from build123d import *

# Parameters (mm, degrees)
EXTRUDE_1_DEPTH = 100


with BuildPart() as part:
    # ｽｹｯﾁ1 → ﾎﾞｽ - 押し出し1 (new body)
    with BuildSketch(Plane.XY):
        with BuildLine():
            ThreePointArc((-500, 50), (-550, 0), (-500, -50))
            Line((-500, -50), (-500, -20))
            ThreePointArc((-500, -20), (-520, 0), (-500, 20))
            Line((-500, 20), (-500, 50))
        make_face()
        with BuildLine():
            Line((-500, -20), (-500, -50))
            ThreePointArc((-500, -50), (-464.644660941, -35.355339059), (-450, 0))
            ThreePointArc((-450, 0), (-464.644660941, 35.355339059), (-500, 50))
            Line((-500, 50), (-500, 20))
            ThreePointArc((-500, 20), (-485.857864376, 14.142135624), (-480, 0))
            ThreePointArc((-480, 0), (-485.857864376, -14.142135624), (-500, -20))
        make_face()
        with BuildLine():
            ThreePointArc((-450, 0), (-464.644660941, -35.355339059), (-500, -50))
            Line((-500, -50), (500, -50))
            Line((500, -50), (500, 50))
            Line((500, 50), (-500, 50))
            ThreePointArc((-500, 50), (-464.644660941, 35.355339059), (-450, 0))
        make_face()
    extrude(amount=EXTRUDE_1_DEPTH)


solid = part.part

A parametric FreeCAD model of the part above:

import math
import FreeCAD as App
import Part
import Sketcher

V = App.Vector

doc = App.newDocument("Part")
body = doc.addObject("PartDesign::Body", "Body")

# Sketch on XY plane
sketch1 = doc.addObject("Sketcher::SketchObject", "Sketch")
body.addObject(sketch1)
sketch1.AttachmentSupport = (doc.XY_Plane, [""])
sketch1.MapMode = "FlatFace"
sketch1.addGeometry([
    Part.ArcOfCircle(Part.Circle(V(-500, 0, 0), V(0, 0, 1), 50), math.radians(90), math.radians(270)),  # 0
    Part.LineSegment(V(-500, -50, 0), V(500, -50, 0)),  # 1
    Part.LineSegment(V(500, -50, 0), V(500, 50, 0)),  # 2
    Part.LineSegment(V(500, 50, 0), V(-500, 50, 0)),  # 3
    Part.ArcOfCircle(Part.Circle(V(-500, 0, 0), V(0, 0, 1), 20), math.radians(90), math.radians(270)),  # 4
    Part.ArcOfCircle(Part.Circle(V(-500, 0, 0), V(0, 0, 1), 20), math.radians(0), math.radians(90)),  # 5
    Part.ArcOfCircle(Part.Circle(V(-500, 0, 0), V(0, 0, 1), 20), math.radians(-90), math.radians(0)),  # 6
], False)
sketch1.addConstraint([
    Sketcher.Constraint("Tangent", 0, 2, 1, 1),
    Sketcher.Constraint("Coincident", 1, 2, 2, 1),
    Sketcher.Constraint("Coincident", 2, 2, 3, 1),
    Sketcher.Constraint("Tangent", 3, 2, 0, 1),
    Sketcher.Constraint("Tangent", 4, 1, 5, 2),
    Sketcher.Constraint("Tangent", 5, 1, 6, 2),
    Sketcher.Constraint("Tangent", 6, 1, 4, 2),
    Sketcher.Constraint("Horizontal", 1),
    Sketcher.Constraint("Vertical", 2),
    Sketcher.Constraint("Horizontal", 3),
    Sketcher.Constraint("Coincident", 4, 3, 0, 3),
    Sketcher.Constraint("Symmetric", 0, 2, 2, 2, -1, 1),
    Sketcher.Constraint("PointOnObject", 5, 1, -1),
    Sketcher.Constraint("Vertical", 3, 2, 4, 1),
    Sketcher.Constraint("Vertical", 4, 1, 6, 1),
    Sketcher.Constraint("Radius", 0, 50.0),
    Sketcher.Constraint("Radius", 4, 20.0),
    Sketcher.Constraint("DistanceX", 1, 1, 1, 2, 1000.0),
])
pad1 = doc.addObject("PartDesign::Pad", "Pad")
body.addObject(pad1)
pad1.Profile = sketch1
pad1.Length = 100

doc.recompute()
